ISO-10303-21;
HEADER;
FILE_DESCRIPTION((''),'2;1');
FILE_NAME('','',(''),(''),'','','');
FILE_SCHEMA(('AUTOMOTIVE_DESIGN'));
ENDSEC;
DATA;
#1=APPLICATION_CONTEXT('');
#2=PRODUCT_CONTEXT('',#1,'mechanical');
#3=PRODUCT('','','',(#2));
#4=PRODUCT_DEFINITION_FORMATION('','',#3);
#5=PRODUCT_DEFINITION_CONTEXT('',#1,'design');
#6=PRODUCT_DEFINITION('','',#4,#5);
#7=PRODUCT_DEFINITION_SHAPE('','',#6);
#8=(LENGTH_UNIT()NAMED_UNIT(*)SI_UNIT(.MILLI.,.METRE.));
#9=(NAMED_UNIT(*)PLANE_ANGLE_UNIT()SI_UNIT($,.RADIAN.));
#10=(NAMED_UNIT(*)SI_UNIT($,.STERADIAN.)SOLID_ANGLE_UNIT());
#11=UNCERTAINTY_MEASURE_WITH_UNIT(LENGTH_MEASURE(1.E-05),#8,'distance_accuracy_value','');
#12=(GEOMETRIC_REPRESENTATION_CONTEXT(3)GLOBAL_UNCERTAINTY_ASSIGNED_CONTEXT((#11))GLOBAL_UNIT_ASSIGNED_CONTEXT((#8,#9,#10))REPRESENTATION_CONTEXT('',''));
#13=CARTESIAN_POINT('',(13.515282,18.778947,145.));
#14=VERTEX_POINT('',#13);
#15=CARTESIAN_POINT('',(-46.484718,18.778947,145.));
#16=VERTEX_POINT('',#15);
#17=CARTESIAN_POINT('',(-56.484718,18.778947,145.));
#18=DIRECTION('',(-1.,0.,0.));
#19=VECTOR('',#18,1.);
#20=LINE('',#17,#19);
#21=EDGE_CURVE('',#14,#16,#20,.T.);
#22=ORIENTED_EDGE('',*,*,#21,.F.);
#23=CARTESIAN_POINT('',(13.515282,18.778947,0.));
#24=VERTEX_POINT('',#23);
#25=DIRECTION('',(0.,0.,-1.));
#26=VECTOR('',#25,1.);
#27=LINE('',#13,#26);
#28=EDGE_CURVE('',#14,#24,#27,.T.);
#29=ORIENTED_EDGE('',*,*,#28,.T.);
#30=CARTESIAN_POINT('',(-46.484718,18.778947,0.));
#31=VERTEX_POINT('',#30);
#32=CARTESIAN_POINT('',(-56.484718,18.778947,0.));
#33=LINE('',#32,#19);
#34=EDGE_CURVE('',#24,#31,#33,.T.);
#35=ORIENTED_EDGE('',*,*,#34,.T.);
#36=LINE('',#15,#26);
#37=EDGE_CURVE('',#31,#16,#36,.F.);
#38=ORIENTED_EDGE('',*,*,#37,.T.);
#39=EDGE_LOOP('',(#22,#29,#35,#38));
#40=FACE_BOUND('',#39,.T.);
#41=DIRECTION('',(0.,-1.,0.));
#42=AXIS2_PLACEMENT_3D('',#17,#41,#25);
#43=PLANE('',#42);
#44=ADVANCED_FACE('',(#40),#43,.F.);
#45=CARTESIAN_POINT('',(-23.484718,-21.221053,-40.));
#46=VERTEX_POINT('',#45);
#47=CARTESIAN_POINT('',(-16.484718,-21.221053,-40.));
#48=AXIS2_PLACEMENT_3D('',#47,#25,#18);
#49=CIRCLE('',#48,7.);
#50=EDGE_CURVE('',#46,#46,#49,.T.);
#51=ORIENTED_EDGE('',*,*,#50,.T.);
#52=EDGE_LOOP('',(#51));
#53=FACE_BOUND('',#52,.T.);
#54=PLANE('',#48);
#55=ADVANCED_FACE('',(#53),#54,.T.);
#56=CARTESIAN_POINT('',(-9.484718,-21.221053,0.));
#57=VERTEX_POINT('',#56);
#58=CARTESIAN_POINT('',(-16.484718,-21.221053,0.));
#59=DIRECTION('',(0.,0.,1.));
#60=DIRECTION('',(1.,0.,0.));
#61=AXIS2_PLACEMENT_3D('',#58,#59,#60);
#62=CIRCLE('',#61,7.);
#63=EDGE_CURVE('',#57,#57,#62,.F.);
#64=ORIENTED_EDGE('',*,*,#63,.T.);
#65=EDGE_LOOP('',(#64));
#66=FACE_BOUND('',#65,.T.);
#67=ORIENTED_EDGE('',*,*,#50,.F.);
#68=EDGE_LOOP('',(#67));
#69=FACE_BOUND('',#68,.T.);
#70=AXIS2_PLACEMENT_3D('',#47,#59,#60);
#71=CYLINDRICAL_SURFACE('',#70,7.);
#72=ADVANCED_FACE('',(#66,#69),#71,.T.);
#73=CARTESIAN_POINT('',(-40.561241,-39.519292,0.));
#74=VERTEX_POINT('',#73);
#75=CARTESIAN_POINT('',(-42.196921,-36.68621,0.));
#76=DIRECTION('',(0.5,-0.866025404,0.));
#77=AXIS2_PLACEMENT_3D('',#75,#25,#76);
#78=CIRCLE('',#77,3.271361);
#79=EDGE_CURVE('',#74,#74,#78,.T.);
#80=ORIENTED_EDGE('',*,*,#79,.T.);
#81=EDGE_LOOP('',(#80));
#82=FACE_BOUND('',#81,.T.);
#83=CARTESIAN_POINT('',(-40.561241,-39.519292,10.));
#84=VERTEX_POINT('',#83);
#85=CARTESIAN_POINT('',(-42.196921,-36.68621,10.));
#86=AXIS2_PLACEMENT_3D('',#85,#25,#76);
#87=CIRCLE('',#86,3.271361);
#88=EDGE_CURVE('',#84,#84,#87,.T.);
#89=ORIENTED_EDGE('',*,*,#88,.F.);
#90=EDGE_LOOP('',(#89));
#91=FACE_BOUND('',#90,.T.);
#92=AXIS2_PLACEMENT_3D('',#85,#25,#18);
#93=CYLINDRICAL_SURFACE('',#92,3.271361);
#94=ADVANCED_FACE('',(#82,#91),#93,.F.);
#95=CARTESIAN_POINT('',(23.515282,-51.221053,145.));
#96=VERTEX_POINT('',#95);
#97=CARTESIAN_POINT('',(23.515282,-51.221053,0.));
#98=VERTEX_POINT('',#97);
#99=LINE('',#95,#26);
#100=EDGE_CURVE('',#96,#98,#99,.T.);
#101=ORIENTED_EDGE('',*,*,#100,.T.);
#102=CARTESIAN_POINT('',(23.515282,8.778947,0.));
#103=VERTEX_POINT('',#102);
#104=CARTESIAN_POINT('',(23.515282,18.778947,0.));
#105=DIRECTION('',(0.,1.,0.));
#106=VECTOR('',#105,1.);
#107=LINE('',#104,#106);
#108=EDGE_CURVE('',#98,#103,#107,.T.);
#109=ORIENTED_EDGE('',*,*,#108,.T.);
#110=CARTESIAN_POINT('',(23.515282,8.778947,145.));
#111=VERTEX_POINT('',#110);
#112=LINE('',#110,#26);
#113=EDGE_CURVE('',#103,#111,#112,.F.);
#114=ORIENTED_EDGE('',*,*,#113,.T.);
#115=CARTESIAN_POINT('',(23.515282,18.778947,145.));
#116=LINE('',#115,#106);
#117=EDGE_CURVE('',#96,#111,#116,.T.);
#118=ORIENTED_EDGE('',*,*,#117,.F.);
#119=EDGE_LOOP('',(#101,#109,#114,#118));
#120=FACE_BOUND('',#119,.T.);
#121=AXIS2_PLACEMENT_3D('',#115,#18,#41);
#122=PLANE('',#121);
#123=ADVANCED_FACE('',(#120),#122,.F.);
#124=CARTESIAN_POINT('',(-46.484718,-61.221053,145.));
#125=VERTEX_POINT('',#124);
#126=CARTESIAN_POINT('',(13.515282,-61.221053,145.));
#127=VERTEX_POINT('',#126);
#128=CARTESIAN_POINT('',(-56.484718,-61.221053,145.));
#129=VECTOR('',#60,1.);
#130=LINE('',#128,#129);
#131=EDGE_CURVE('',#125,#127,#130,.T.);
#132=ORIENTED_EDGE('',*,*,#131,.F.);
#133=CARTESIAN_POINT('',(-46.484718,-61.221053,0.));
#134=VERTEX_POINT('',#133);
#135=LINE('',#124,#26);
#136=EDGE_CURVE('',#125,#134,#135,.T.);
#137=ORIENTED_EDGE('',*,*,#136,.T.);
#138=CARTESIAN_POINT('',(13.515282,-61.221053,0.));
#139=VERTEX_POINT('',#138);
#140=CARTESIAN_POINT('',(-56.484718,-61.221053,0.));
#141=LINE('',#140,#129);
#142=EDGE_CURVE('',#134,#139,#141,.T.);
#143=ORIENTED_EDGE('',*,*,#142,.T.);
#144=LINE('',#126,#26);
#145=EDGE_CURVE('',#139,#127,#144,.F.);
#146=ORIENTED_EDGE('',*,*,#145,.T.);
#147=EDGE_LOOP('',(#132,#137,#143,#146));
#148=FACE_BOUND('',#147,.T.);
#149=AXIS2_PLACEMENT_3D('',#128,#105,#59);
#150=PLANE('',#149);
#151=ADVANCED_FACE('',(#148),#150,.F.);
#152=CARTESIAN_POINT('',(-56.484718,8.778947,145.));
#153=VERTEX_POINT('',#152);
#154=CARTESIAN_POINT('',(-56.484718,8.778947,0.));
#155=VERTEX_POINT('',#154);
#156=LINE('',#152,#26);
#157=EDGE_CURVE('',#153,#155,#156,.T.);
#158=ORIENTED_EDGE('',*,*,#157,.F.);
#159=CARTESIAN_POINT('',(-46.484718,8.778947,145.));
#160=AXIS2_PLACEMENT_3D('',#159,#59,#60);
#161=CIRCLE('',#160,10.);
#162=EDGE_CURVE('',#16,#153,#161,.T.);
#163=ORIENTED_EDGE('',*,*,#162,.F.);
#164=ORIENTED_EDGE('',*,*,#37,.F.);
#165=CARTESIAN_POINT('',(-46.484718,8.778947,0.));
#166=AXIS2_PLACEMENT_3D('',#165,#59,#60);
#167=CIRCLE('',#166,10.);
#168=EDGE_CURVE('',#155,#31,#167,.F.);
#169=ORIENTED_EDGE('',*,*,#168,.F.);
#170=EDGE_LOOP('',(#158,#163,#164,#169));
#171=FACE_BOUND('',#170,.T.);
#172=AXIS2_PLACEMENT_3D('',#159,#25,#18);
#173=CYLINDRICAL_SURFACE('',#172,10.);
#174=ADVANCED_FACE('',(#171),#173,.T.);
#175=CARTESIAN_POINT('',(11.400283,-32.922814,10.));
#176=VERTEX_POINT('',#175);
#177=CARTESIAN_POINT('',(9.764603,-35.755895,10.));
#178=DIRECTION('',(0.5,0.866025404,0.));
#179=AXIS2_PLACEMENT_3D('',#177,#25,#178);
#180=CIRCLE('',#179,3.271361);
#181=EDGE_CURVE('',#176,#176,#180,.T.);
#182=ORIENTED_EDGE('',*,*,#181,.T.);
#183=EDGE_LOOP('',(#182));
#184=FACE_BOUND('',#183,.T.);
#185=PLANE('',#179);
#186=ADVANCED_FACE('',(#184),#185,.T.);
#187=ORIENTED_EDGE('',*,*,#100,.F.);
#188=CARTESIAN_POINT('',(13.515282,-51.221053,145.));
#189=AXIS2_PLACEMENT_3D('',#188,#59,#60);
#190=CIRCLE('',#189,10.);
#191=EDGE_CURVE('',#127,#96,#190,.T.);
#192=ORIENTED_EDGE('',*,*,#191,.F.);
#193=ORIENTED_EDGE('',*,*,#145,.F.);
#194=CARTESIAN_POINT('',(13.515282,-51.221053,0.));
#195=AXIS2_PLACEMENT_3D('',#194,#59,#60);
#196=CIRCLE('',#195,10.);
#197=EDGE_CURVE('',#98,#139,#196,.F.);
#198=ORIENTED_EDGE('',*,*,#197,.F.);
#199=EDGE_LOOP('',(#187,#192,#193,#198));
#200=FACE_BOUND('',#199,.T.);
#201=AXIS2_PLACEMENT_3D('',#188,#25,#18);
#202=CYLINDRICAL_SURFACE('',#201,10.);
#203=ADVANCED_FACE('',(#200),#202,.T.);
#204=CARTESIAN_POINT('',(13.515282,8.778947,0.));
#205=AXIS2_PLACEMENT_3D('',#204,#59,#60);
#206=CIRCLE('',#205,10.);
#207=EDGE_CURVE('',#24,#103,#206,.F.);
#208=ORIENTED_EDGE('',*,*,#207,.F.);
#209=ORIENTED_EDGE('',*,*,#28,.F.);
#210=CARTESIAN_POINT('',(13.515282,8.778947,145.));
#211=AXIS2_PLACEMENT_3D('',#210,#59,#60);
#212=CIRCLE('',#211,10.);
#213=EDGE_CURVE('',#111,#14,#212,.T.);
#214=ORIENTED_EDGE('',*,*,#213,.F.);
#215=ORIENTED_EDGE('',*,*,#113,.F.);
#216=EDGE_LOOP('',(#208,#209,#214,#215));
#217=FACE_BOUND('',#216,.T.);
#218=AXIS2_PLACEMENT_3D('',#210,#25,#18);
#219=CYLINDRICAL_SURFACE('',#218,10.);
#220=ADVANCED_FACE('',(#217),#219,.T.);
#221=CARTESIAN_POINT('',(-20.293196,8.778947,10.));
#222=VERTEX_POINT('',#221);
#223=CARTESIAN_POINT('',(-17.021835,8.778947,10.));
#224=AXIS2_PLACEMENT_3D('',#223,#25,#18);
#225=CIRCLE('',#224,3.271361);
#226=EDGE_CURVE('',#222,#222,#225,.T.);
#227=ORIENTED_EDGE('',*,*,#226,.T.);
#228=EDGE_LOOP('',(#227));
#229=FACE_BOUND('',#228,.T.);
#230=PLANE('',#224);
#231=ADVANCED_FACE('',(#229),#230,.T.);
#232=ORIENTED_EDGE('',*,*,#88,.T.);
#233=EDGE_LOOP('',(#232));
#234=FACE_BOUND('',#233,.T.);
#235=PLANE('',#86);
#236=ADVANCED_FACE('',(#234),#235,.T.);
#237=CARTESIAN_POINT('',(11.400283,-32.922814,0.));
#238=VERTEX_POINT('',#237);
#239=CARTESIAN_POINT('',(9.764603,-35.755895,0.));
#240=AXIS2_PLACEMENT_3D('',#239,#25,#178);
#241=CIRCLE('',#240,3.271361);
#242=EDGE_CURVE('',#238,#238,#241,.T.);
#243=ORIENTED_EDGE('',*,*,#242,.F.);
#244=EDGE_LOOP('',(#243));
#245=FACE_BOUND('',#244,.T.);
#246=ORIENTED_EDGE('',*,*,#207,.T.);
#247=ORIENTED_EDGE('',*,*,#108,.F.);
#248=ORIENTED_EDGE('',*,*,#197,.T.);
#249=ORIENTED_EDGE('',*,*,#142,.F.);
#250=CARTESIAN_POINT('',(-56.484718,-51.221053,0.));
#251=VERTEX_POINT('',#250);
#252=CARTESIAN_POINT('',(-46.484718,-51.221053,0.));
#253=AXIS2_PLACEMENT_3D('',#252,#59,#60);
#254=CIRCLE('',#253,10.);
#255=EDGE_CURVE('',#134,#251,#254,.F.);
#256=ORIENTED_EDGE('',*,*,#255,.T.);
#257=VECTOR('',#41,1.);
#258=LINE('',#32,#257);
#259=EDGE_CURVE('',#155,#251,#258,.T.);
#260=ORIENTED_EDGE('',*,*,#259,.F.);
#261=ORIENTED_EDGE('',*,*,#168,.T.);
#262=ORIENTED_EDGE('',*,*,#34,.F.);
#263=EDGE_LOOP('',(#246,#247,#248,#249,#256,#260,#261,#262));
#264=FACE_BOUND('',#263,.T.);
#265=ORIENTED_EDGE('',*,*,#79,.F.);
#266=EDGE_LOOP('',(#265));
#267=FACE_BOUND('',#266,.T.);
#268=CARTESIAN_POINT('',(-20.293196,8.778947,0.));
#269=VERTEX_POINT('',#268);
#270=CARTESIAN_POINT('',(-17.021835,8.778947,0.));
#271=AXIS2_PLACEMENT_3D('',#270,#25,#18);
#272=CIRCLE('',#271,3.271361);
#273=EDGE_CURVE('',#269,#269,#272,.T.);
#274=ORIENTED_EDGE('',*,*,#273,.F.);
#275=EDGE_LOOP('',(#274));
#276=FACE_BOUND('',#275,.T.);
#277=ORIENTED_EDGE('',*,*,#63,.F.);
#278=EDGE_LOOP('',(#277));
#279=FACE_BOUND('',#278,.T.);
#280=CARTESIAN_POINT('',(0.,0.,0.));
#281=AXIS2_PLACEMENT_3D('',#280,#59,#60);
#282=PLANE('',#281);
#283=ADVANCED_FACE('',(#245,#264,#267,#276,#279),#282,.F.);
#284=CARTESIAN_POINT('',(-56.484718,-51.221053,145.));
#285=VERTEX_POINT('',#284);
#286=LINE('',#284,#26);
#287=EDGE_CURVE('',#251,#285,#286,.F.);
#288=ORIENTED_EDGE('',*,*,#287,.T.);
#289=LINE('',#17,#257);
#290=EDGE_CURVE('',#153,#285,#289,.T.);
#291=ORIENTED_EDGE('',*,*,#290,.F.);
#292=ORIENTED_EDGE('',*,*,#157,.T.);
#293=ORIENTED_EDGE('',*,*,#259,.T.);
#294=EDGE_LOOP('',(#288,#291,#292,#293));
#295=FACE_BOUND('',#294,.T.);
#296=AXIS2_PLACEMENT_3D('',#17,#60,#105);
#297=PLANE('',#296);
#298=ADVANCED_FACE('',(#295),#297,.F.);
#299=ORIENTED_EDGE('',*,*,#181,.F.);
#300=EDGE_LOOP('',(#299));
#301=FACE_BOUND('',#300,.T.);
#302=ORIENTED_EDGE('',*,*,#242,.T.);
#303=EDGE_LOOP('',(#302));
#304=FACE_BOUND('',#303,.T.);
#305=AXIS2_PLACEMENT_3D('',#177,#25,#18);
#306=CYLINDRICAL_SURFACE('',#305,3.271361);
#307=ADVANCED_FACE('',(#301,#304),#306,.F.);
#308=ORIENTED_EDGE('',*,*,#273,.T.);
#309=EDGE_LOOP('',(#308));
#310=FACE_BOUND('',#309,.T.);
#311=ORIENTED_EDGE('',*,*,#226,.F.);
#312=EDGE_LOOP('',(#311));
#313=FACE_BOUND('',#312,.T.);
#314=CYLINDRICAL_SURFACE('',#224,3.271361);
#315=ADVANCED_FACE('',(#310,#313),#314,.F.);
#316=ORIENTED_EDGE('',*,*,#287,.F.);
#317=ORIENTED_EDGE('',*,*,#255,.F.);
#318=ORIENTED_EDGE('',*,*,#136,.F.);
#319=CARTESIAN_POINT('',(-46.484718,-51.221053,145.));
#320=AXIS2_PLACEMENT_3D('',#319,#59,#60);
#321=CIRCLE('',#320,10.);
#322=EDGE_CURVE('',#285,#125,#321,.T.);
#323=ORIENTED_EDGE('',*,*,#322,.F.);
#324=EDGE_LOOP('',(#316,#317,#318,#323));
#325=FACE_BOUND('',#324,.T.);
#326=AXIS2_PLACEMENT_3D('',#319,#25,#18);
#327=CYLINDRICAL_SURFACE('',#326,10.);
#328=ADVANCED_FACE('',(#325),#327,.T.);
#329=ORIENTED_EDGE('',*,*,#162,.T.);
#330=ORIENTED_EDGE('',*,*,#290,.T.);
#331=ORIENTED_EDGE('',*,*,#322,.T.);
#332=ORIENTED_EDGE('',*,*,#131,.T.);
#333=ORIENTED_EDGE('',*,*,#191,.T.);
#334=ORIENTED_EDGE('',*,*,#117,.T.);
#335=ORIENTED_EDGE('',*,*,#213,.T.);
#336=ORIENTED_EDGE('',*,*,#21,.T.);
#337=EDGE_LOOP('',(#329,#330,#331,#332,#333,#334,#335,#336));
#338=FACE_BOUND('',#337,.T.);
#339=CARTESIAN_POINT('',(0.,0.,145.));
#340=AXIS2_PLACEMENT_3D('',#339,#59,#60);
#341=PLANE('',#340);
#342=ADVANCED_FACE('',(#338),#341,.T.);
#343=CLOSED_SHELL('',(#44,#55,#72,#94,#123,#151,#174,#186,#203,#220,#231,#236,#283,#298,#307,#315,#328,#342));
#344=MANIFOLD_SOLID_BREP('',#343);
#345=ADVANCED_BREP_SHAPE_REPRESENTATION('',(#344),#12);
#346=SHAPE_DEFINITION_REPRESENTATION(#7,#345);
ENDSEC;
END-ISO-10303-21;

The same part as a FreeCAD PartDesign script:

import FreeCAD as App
import Part
import Sketcher
from FreeCAD import Vector


def edges_at(feature, points):
    """Names of the edges that pass closest to the given points."""
    edges = feature.Shape.Edges
    near = lambda p: min(range(len(edges)), key=lambda i: edges[i].distToShape(Part.Vertex(*p))[0])
    return sorted({f"Edge{near(p) + 1}" for p in points})

doc = App.newDocument("Part")
body = doc.addObject("PartDesign::Body", "Body")

# Sketch on XY plane
sketch1 = body.newObject("Sketcher::SketchObject", "Sketch")
sketch1.AttachmentSupport = (doc.getObject("XY_Plane"), [""])
sketch1.MapMode = "FlatFace"
sketch1.addGeometry(Part.LineSegment(Vector(-56.484718, 18.778947, 0), Vector(-56.484718, -61.221053, 0)), False)
sketch1.addGeometry(Part.LineSegment(Vector(-56.484718, -61.221053, 0), Vector(23.515282, -61.221053, 0)), False)
sketch1.addGeometry(Part.LineSegment(Vector(23.515282, -61.221053, 0), Vector(23.515282, 18.778947, 0)), False)
sketch1.addGeometry(Part.LineSegment(Vector(23.515282, 18.778947, 0), Vector(-56.484718, 18.778947, 0)), False)
sketch1.addConstraint(Sketcher.Constraint("Coincident", 0, 2, 1, 1))
sketch1.addConstraint(Sketcher.Constraint("Coincident", 1, 2, 2, 1))
sketch1.addConstraint(Sketcher.Constraint("Coincident", 2, 2, 3, 1))
sketch1.addConstraint(Sketcher.Constraint("Coincident", 3, 2, 0, 1))
sketch1.addConstraint(Sketcher.Constraint("Vertical", 0))
sketch1.addConstraint(Sketcher.Constraint("Horizontal", 1))
sketch1.addConstraint(Sketcher.Constraint("Vertical", 2))
sketch1.addConstraint(Sketcher.Constraint("Horizontal", 3))
sketch1.addConstraint(Sketcher.Constraint("Equal", 3, 0))
sketch1.addConstraint(Sketcher.Constraint("DistanceX", 1, 1, 1, 2, 80.0))
sketch1.addConstraint(Sketcher.Constraint("DistanceX", 0, 2, -1, 1, 56.484718))
sketch1.addConstraint(Sketcher.Constraint("DistanceY", 0, 2, -1, 1, 61.221053))
pad1 = body.newObject("PartDesign::Pad", "Pad")
pad1.Profile = sketch1
pad1.Length = 145
doc.recompute()

fillet = body.newObject("PartDesign::Fillet", "Fillet")
fillet.Base = (pad1, edges_at(pad1, [
    (-56.485, 18.779, 72.5),
    (23.515, 18.779, 72.5),
    (23.515, -61.221, 72.5),
    (-56.485, -61.221, 72.5),
]))
fillet.Radius = 10

# Sketch on XY plane
sketch2 = body.newObject("Sketcher::SketchObject", "Sketch001")
sketch2.AttachmentSupport = (doc.getObject("XY_Plane"), [""])
sketch2.MapMode = "FlatFace"
sketch2.addGeometry(Part.Circle(Vector(-16.484718, -21.221053, 0), Vector(0, 0, 1), 7), False)
sketch2.addConstraint(Sketcher.Constraint("Diameter", 0, 14.0))
sketch2.addConstraint(Sketcher.Constraint("DistanceX", 0, 3, -1, 1, 16.484718))
sketch2.addConstraint(Sketcher.Constraint("DistanceY", 0, 3, -1, 1, 21.221053))
pad2 = body.newObject("PartDesign::Pad", "Pad001")
pad2.Profile = sketch2
pad2.Length = 40
pad2.Reversed = True

# Sketch on XY plane
sketch3 = body.newObject("Sketcher::SketchObject", "Sketch002")
sketch3.AttachmentSupport = (doc.getObject("XY_Plane"), [""])
sketch3.MapMode = "FlatFace"
sketch3.addGeometry(Part.Circle(Vector(-17.021835, 8.778947, 0), Vector(0, 0, 1), 3.271361), False)
sketch3.addConstraint(Sketcher.Constraint("Diameter", 0, 6.542722))
sketch3.addConstraint(Sketcher.Constraint("DistanceX", 0, 3, -1, 1, 17.021835))
sketch3.addConstraint(Sketcher.Constraint("DistanceY", -1, 1, 0, 3, 8.778947))
pocket1 = body.newObject("PartDesign::Pocket", "Pocket")
pocket1.Profile = sketch3
pocket1.Length = 10
pocket1.Reversed = True
doc.recompute()

datumline = body.newObject("PartDesign::Line", "DatumLine")
datumline.Placement = App.Placement(Vector(-16.484718, -21.221053, 0), App.Rotation(Vector(0, 0, 1), Vector(0, 0, 1)))
polarpattern = body.newObject("PartDesign::PolarPattern", "PolarPattern")
polarpattern.Originals = [pocket1]
polarpattern.Axis = (datumline, [""])
polarpattern.Angle = 360
polarpattern.Occurrences = 3
body.Tip = polarpattern

doc.recompute()
